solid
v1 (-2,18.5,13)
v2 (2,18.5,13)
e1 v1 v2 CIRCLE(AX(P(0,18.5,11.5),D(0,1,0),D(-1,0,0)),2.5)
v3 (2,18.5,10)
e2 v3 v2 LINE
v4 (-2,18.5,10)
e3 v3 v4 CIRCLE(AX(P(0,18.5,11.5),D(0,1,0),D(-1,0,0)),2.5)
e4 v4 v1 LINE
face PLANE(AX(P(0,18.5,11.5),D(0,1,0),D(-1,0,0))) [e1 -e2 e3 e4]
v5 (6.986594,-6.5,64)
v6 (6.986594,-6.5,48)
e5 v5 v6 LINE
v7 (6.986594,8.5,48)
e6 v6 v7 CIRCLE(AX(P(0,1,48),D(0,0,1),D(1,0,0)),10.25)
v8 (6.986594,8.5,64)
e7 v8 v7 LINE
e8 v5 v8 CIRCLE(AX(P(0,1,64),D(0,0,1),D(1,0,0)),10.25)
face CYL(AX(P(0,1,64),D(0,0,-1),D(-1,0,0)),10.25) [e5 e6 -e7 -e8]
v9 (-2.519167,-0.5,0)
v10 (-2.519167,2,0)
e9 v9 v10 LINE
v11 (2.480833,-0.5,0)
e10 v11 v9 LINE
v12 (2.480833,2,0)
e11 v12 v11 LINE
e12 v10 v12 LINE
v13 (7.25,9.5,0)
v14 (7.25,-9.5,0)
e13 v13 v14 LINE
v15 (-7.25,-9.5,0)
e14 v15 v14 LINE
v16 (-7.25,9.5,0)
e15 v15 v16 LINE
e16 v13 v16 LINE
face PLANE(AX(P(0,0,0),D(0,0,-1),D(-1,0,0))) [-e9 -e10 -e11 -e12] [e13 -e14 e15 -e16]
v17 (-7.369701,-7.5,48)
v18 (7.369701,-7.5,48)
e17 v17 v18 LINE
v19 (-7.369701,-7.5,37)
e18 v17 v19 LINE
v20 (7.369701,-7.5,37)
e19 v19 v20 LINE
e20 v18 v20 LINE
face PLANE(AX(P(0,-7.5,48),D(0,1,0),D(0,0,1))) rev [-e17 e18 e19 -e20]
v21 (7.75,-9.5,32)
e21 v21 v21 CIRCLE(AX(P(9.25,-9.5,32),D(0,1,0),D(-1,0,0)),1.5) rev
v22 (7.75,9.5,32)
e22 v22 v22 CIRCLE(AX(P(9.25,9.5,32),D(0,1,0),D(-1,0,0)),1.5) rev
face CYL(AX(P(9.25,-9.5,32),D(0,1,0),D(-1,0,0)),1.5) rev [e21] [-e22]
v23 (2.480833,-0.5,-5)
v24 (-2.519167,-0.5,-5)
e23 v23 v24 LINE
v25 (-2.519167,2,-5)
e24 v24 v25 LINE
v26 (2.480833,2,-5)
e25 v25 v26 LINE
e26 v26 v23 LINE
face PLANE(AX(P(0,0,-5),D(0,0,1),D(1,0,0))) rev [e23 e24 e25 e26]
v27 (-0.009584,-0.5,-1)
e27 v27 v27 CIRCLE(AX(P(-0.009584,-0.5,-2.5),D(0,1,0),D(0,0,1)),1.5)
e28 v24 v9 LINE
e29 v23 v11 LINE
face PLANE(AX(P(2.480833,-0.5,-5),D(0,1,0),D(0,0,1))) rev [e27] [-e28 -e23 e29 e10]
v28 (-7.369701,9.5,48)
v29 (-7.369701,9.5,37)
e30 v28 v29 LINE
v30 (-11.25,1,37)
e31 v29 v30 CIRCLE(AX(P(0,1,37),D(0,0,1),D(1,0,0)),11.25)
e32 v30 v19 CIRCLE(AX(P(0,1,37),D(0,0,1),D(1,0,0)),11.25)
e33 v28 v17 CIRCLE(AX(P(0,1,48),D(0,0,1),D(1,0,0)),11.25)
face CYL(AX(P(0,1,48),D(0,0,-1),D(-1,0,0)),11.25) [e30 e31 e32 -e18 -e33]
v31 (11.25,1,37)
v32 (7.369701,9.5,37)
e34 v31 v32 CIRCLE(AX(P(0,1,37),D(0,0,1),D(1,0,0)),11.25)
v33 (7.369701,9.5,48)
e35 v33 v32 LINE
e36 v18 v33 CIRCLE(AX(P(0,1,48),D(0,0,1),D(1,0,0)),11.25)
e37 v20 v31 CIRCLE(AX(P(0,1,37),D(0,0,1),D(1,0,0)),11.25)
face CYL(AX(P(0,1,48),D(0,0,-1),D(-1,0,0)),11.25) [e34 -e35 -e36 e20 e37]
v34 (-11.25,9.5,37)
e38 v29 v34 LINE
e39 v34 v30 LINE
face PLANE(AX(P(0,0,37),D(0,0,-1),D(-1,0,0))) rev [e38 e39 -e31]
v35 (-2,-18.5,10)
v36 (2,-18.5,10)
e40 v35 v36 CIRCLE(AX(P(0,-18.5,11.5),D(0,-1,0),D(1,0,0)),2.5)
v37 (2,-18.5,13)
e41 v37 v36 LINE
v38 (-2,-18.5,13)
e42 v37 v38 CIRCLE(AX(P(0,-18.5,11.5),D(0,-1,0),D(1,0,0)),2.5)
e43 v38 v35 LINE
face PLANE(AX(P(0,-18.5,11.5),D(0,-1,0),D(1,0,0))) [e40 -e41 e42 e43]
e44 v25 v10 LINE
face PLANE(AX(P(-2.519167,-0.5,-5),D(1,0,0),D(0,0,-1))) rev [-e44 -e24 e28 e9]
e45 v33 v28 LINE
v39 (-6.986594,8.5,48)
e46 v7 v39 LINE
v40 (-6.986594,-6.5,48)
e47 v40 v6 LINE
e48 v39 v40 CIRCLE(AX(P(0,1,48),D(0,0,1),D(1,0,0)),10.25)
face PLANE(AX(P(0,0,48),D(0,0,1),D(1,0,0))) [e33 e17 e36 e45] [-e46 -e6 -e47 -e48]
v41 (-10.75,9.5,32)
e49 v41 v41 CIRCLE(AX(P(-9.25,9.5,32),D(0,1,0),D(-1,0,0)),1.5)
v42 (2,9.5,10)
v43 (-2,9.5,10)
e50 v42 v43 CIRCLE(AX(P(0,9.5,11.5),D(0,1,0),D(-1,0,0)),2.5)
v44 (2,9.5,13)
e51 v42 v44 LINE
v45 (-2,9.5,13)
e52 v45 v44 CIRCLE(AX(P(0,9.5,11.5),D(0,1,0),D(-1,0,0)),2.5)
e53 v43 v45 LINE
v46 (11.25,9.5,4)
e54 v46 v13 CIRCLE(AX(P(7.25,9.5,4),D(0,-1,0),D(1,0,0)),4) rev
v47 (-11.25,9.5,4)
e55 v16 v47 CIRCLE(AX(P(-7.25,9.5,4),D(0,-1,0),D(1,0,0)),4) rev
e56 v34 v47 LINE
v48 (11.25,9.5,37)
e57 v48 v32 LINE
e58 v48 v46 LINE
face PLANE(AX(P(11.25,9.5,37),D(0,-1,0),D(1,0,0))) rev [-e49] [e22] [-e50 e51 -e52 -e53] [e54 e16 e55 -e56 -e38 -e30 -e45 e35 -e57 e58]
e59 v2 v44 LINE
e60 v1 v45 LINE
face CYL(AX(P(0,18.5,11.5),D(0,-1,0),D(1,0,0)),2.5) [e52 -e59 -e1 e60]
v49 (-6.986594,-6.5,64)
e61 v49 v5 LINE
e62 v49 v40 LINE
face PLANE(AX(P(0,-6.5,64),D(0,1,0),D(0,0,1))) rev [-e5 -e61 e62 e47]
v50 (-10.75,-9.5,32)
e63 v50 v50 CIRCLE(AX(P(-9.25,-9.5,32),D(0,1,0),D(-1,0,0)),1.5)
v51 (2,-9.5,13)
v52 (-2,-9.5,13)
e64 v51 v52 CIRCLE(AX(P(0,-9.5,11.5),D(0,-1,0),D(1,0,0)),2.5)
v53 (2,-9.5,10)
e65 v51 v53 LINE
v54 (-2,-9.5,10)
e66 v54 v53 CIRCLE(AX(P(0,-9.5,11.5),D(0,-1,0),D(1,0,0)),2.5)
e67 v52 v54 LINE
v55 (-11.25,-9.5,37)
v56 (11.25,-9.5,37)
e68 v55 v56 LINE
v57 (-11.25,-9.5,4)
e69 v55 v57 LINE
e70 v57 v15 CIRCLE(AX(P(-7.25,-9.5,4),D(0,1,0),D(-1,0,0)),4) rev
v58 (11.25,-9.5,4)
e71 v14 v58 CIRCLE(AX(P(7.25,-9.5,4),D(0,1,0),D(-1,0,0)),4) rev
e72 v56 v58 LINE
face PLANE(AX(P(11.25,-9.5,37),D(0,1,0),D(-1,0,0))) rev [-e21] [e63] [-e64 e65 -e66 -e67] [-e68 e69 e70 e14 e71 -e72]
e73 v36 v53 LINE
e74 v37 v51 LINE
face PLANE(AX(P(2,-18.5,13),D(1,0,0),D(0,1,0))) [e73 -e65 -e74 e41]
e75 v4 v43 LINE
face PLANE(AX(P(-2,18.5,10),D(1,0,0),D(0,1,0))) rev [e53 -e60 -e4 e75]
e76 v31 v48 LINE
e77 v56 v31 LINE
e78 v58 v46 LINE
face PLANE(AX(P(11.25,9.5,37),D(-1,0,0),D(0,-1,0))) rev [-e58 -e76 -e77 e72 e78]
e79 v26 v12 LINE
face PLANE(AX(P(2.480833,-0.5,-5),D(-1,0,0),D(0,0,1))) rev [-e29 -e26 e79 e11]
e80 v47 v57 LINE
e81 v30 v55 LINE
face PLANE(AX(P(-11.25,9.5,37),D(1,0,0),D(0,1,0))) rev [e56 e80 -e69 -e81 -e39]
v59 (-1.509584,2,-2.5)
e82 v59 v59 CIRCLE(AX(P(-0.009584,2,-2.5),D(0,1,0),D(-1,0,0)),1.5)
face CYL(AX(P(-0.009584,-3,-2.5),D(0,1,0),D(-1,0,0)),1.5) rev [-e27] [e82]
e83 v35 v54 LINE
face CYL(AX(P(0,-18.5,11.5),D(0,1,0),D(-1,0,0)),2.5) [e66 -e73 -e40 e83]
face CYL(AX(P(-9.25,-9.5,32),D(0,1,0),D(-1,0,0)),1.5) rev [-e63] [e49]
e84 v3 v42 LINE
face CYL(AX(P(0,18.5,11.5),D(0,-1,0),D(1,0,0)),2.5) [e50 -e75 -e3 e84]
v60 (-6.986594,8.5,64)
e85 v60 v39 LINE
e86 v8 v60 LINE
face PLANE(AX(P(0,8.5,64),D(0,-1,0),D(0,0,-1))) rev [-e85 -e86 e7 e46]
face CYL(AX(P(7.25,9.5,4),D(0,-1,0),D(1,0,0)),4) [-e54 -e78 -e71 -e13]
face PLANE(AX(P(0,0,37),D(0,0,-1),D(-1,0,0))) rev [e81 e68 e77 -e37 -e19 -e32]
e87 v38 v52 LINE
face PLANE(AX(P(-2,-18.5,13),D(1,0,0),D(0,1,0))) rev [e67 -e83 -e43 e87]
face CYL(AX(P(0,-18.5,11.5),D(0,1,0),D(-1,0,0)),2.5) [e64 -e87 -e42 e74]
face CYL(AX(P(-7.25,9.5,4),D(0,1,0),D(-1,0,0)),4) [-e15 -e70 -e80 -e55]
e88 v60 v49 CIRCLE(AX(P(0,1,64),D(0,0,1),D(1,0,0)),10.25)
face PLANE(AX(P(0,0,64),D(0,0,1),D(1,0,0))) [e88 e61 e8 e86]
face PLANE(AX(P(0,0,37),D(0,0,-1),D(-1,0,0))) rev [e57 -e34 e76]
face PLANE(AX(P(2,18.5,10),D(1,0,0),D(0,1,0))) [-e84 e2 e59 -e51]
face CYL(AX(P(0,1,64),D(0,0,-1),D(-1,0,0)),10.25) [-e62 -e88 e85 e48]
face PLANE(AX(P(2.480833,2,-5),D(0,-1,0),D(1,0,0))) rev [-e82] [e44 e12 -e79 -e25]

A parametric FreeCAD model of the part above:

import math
import FreeCAD as App
import Part
import Sketcher
Q = App.Units.Quantity


def edges_at(feature, points):
    """Names of the edges that pass closest to the given points."""
    edges = feature.Shape.Edges
    near = lambda p: min(range(len(edges)), key=lambda i: edges[i].distToShape(Part.Vertex(*p))[0])
    return sorted({f"Edge{near(p) + 1}" for p in points})


def add_polygon(sketch, points):
    """Adds a closed chain of lines whose ends are joined by coincident constraints."""
    first, n = sketch.GeometryCount, len(points)
    for a, b in zip(points, points[1:] + points[:1]):
        sketch.addGeometry(Part.LineSegment(App.Vector(*a, 0), App.Vector(*b, 0)), False)
    for i in range(n):
        sketch.addConstraint(Sketcher.Constraint("Coincident", first + i, 2, first + (i + 1) % n, 1))

doc = App.newDocument("Part")
body = doc.addObject("PartDesign::Body", "Body")

# Sketch on XY plane
sketch1 = doc.addObject("Sketcher::SketchObject", "Sketch")
body.addObject(sketch1)
sketch1.AttachmentSupport = (doc.XY_Plane, [""])
sketch1.MapMode = "FlatFace"
add_polygon(sketch1, [(-11.25, 9.5), (-11.25, -9.5), (11.25, -9.5), (11.25, 9.5)])  # lines 0-3
sketch1.addConstraint([
    Sketcher.Constraint("Vertical", 0),
    Sketcher.Constraint("Horizontal", 1),
    Sketcher.Constraint("Vertical", 2),
    Sketcher.Constraint("Horizontal", 3),
    Sketcher.Constraint("Symmetric", 0, 2, 2, 2, -1, 1),
    Sketcher.Constraint("DistanceY", 0, 2, 0, 1, Q("19 mm")),
    Sketcher.Constraint("DistanceX", 1, 1, 1, 2, Q("22.5 mm")),
])
pad1 = doc.addObject("PartDesign::Pad", "Pad")
body.addObject(pad1)
pad1.Profile = sketch1
pad1.Length = 37

# Sketch on XY plane
sketch2 = doc.addObject("Sketcher::SketchObject", "Sketch001")
body.addObject(sketch2)
sketch2.AttachmentSupport = (doc.XY_Plane, [""])
sketch2.MapMode = "FlatFace"
sketch2.AttachmentOffset = App.Placement(App.Vector(0, 0, 37), App.Rotation())
sketch2.addGeometry([
    Part.LineSegment(App.Vector(-7.369701, -7.5, 0), App.Vector(7.369701, -7.5, 0)),
    Part.ArcOfCircle(Part.Circle(App.Vector(0, 1, 0), App.Vector(0, 0, 1), 11.25), math.radians(-49.073937), math.radians(49.073937)),
    Part.LineSegment(App.Vector(7.369701, 9.5, 0), App.Vector(-7.369701, 9.5, 0)),
    Part.ArcOfCircle(Part.Circle(App.Vector(0, 1, 0), App.Vector(0, 0, 1), 11.25), math.radians(130.926063), math.radians(229.073937)),
], False)
sketch2.addConstraint([
    Sketcher.Constraint("Coincident", 0, 2, 1, 1),
    Sketcher.Constraint("Coincident", 1, 2, 2, 1),
    Sketcher.Constraint("Coincident", 2, 2, 3, 1),
    Sketcher.Constraint("Coincident", 3, 2, 0, 1),
    Sketcher.Constraint("Horizontal", 0),
    Sketcher.Constraint("Horizontal", 2),
    Sketcher.Constraint("Coincident", 3, 3, 1, 3),
    Sketcher.Constraint("Equal", 1, 3),
    Sketcher.Constraint("PointOnObject", 1, 3, -2),
    Sketcher.Constraint("Vertical", 0, 2, 1, 2),
    Sketcher.Constraint("Radius", 1, Q("11.25 mm")),
    Sketcher.Constraint("DistanceY", -1, 1, 1, 3, Q("1 mm")),
    Sketcher.Constraint("DistanceY", 0, 2, 1, 2, Q("17 mm")),
])
pad2 = doc.addObject("PartDesign::Pad", "Pad001")
body.addObject(pad2)
pad2.Profile = sketch2
pad2.Length = 11

# Sketch on XY plane
sketch3 = doc.addObject("Sketcher::SketchObject", "Sketch002")
body.addObject(sketch3)
sketch3.AttachmentSupport = (doc.XY_Plane, [""])
sketch3.MapMode = "FlatFace"
sketch3.AttachmentOffset = App.Placement(App.Vector(0, 0, 48), App.Rotation())
sketch3.addGeometry([
    Part.ArcOfCircle(Part.Circle(App.Vector(0, 1, 0), App.Vector(0, 0, 1), 10.25), math.radians(132.970284), math.radians(227.029716)),
    Part.LineSegment(App.Vector(-6.986594, -6.5, 0), App.Vector(6.986594, -6.5, 0)),
    Part.ArcOfCircle(Part.Circle(App.Vector(0, 1, 0), App.Vector(0, 0, 1), 10.25), math.radians(-47.029716), math.radians(47.029716)),
    Part.LineSegment(App.Vector(6.986594, 8.5, 0), App.Vector(-6.986594, 8.5, 0)),
], False)
sketch3.addConstraint([
    Sketcher.Constraint("Coincident", 0, 2, 1, 1),
    Sketcher.Constraint("Coincident", 1, 2, 2, 1),
    Sketcher.Constraint("Coincident", 2, 2, 3, 1),
    Sketcher.Constraint("Coincident", 3, 2, 0, 1),
    Sketcher.Constraint("Horizontal", 1),
    Sketcher.Constraint("Horizontal", 3),
    Sketcher.Constraint("Coincident", 2, 3, 0, 3),
    Sketcher.Constraint("Equal", 0, 2),
    Sketcher.Constraint("PointOnObject", 0, 3, -2),
    Sketcher.Constraint("Vertical", 1, 2, 2, 2),
    Sketcher.Constraint("Radius", 0, Q("10.25 mm")),
    Sketcher.Constraint("DistanceY", -1, 1, 0, 3, Q("1 mm")),
    Sketcher.Constraint("DistanceY", 1, 2, 2, 2, Q("15 mm")),
])
pad3 = doc.addObject("PartDesign::Pad", "Pad002")
body.addObject(pad3)
pad3.Profile = sketch3
pad3.Length = 16
doc.recompute()

fillet = doc.addObject("PartDesign::Fillet", "Fillet")
body.addObject(fillet)
fillet.Base = (pad3, edges_at(pad3, [(11.25, 0, 0), (-11.25, 0, 0)]))
fillet.Radius = 4

# Sketch on XY plane
sketch4 = doc.addObject("Sketcher::SketchObject", "Sketch003")
body.addObject(sketch4)
sketch4.AttachmentSupport = (doc.XY_Plane, [""])
sketch4.MapMode = "FlatFace"
add_polygon(sketch4, [(2.480833, 2), (2.480833, -0.5), (-2.519167, -0.5), (-2.519167, 2)])  # lines 0-3
sketch4.addConstraint([
    Sketcher.Constraint("Vertical", 0),
    Sketcher.Constraint("Horizontal", 1),
    Sketcher.Constraint("Vertical", 2),
    Sketcher.Constraint("Horizontal", 3),
    Sketcher.Constraint("DistanceX", 1, 2, 1, 1, Q("5 mm")),
    Sketcher.Constraint("DistanceY", 0, 2, 0, 1, Q("2.5 mm")),
    Sketcher.Constraint("DistanceY", -1, 1, 2, 2, Q("2 mm")),
    Sketcher.Constraint("DistanceX", -1, 1, 0, 2, Q("2.480833 mm")),
])
pad4 = doc.addObject("PartDesign::Pad", "Pad003")
body.addObject(pad4)
pad4.Profile = sketch4
pad4.Length = 5
pad4.Reversed = True

# Sketch on XZ plane
sketch5 = doc.addObject("Sketcher::SketchObject", "Sketch004")
body.addObject(sketch5)
sketch5.AttachmentSupport = (doc.XZ_Plane, [""])
sketch5.MapMode = "FlatFace"
sketch5.AttachmentOffset = App.Placement(App.Vector(0, 0, -2), App.Rotation())
sketch5.addGeometry(Part.Circle(App.Vector(-0.009584, -2.5, 0), App.Vector(0, 0, 1), 1.5), False)
sketch5.addConstraint([
    Sketcher.Constraint("Diameter", 0, Q("3 mm")),
    Sketcher.Constraint("DistanceY", 0, 3, -1, 1, Q("2.5 mm")),
    Sketcher.Constraint("DistanceX", 0, 3, -1, 1, Q("0.009584 mm")),
])
pocket1 = doc.addObject("PartDesign::Pocket", "Pocket")
body.addObject(pocket1)
pocket1.Profile = sketch5
pocket1.Length = 5
pocket1.Reversed = True

# Sketch on XZ plane
sketch6 = doc.addObject("Sketcher::SketchObject", "Sketch005")
body.addObject(sketch6)
sketch6.AttachmentSupport = (doc.XZ_Plane, [""])
sketch6.MapMode = "FlatFace"
sketch6.AttachmentOffset = App.Placement(App.Vector(0, 0, -9.5), App.Rotation())
sketch6.addGeometry([
    Part.Circle(App.Vector(-9.25, 32, 0), App.Vector(0, 0, 1), 1.5),
    Part.Circle(App.Vector(9.25, 32, 0), App.Vector(0, 0, 1), 1.5),
], False)
sketch6.addConstraint([
    Sketcher.Constraint("Equal", 0, 1),
    Sketcher.Constraint("Symmetric", 0, 3, 1, 3, -2),
    Sketcher.Constraint("Diameter", 0, Q("3 mm")),
    Sketcher.Constraint("DistanceY", -1, 1, 0, 3, Q("32 mm")),
    Sketcher.Constraint("DistanceX", 0, 3, 1, 3, Q("18.5 mm")),
])
pocket2 = doc.addObject("PartDesign::Pocket", "Pocket001")
body.addObject(pocket2)
pocket2.Profile = sketch6
pocket2.Length = 19
pocket2.Reversed = True

# Sketch on XZ plane
sketch7 = doc.addObject("Sketcher::SketchObject", "Sketch006")
body.addObject(sketch7)
sketch7.AttachmentSupport = (doc.XZ_Plane, [""])
sketch7.MapMode = "FlatFace"
sketch7.AttachmentOffset = App.Placement(App.Vector(0, 0, -9.5), App.Rotation())
sketch7.addGeometry([
    Part.LineSegment(App.Vector(-2, 10, 0), App.Vector(-2, 13, 0)),
    Part.ArcOfCircle(Part.Circle(App.Vector(0, 11.5, 0), App.Vector(0, 0, 1), 2.5), math.radians(36.869898), math.radians(143.130102)),
    Part.LineSegment(App.Vector(2, 13, 0), App.Vector(2, 10, 0)),
    Part.ArcOfCircle(Part.Circle(App.Vector(0, 11.5, 0), App.Vector(0, 0, 1), 2.5), math.radians(-143.130102), math.radians(-36.869898)),
], False)
sketch7.addConstraint([
    Sketcher.Constraint("Coincident", 0, 2, 1, 2),
    Sketcher.Constraint("Coincident", 1, 1, 2, 1),
    Sketcher.Constraint("Coincident", 2, 2, 3, 2),
    Sketcher.Constraint("Coincident", 3, 1, 0, 1),
    Sketcher.Constraint("Vertical", 0),
    Sketcher.Constraint("Vertical", 2),
    Sketcher.Constraint("Coincident", 3, 3, 1, 3),
    Sketcher.Constraint("Equal", 1, 3),
    Sketcher.Constraint("Symmetric", 0, 2, 1, 1, -2),
    Sketcher.Constraint("Radius", 1, Q("2.5 mm")),
    Sketcher.Constraint("DistanceY", 0, 1, 0, 2, Q("3 mm")),
    Sketcher.Constraint("DistanceY", -1, 1, 0, 2, Q("13 mm")),
])
pad5 = doc.addObject("PartDesign::Pad", "Pad004")
body.addObject(pad5)
pad5.Profile = sketch7
pad5.Length = 9
pad5.Reversed = True

# Sketch on XZ plane
sketch8 = doc.addObject("Sketcher::SketchObject", "Sketch007")
body.addObject(sketch8)
sketch8.AttachmentSupport = (doc.XZ_Plane, [""])
sketch8.MapMode = "FlatFace"
sketch8.AttachmentOffset = App.Placement(App.Vector(0, 0, 18.5), App.Rotation())
sketch8.addGeometry([
    Part.LineSegment(App.Vector(-2, 13, 0), App.Vector(-2, 10, 0)),
    Part.ArcOfCircle(Part.Circle(App.Vector(0, 11.5, 0), App.Vector(0, 0, 1), 2.5), math.radians(-143.130102), math.radians(-36.869898)),
    Part.LineSegment(App.Vector(2, 10, 0), App.Vector(2, 13, 0)),
    Part.ArcOfCircle(Part.Circle(App.Vector(0, 11.5, 0), App.Vector(0, 0, 1), 2.5), math.radians(36.869898), math.radians(143.130102)),
], False)
sketch8.addConstraint([
    Sketcher.Constraint("Coincident", 0, 2, 1, 1),
    Sketcher.Constraint("Coincident", 1, 2, 2, 1),
    Sketcher.Constraint("Coincident", 2, 2, 3, 1),
    Sketcher.Constraint("Coincident", 3, 2, 0, 1),
    Sketcher.Constraint("Vertical", 0),
    Sketcher.Constraint("Vertical", 2),
    Sketcher.Constraint("Coincident", 3, 3, 1, 3),
    Sketcher.Constraint("Equal", 1, 3),
    Sketcher.Constraint("Symmetric", 0, 2, 1, 2, -2),
    Sketcher.Constraint("Radius", 1, Q("2.5 mm")),
    Sketcher.Constraint("DistanceY", 0, 2, 0, 1, Q("3 mm")),
    Sketcher.Constraint("DistanceY", -1, 1, 0, 2, Q("10 mm")),
])
pad6 = doc.addObject("PartDesign::Pad", "Pad005")
body.addObject(pad6)
pad6.Profile = sketch8
pad6.Length = 9
pad6.Reversed = True

doc.recompute()
